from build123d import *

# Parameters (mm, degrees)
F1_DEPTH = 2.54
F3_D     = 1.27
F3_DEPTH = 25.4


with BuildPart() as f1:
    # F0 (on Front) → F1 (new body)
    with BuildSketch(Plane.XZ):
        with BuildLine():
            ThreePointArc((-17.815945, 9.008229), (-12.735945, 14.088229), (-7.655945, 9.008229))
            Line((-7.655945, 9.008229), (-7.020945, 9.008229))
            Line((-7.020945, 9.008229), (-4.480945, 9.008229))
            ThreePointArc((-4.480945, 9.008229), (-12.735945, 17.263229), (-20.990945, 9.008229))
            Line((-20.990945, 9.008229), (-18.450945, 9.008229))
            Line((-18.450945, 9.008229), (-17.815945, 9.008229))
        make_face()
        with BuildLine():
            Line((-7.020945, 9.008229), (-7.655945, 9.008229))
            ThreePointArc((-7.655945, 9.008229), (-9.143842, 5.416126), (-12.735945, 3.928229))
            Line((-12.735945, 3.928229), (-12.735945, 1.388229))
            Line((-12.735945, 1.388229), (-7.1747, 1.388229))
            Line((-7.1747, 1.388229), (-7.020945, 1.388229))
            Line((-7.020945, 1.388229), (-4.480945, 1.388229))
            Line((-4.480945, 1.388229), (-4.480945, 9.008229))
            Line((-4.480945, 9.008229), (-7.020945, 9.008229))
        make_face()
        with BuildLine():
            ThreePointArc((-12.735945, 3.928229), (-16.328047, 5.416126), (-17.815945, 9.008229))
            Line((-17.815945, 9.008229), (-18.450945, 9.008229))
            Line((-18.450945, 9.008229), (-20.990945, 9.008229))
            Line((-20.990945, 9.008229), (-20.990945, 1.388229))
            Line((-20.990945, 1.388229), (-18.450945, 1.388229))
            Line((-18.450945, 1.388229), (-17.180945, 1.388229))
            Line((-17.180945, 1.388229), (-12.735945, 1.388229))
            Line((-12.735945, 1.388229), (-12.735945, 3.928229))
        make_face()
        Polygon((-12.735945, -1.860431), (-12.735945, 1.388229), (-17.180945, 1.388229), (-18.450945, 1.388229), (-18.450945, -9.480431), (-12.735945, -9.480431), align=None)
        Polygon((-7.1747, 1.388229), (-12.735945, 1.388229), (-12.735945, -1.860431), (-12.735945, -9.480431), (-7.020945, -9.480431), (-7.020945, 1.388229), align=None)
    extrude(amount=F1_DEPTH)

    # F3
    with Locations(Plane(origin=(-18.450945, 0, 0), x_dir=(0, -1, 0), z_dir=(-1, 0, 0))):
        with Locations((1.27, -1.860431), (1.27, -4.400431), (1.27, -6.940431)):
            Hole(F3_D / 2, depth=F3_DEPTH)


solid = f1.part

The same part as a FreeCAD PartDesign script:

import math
import FreeCAD as App
import Part
import Sketcher
Q = App.Units.Quantity

doc = App.newDocument("Part")
params = doc.addObject("Spreadsheet::Sheet", "Params")
for row, (alias, value) in enumerate([
    ("sketch1_radius", "0.2 in"),
    ("sketch1_width", "0.1 in"),
    ("sketch1_height", "0.3 in"),
    ("sketch1_radius2", "0.325 in"),
    ("pad1_length", "0.1 in"),
    ("sketch2_diameter", "0.05 in"),
    ("hole_diameter", "0.05 in"),
    ("hole_depth", "1 in"),
], start=1):
    params.set(f"A{row}", alias)
    params.set(f"B{row}", "=" + value)
    params.setAlias(f"B{row}", alias)

body = doc.addObject("PartDesign::Body", "Body")

# Sketch on XZ plane
sketch1 = body.newObject("Sketcher::SketchObject", "Sketch")
sketch1.AttachmentSupport = (doc.getObject("XZ_Plane"), [""])
sketch1.MapMode = "FlatFace"
sketch1.addGeometry(Part.LineSegment(App.Vector(-4.480945, 1.388229, 0), App.Vector(-4.480945, 9.008229, 0)), False)
sketch1.addGeometry(Part.ArcOfCircle(Part.Circle(App.Vector(-12.735945, 9.008229, 0), App.Vector(0, 0, 1), 8.255), math.radians(0), math.radians(180)), False)
sketch1.addGeometry(Part.LineSegment(App.Vector(-20.990945, 9.008229, 0), App.Vector(-20.990945, 1.388229, 0)), False)
sketch1.addGeometry(Part.LineSegment(App.Vector(-20.990945, 1.388229, 0), App.Vector(-18.450945, 1.388229, 0)), False)
sketch1.addGeometry(Part.LineSegment(App.Vector(-18.450945, 1.388229, 0), App.Vector(-18.450945, -9.480431, 0)), False)
sketch1.addGeometry(Part.LineSegment(App.Vector(-18.450945, -9.480431, 0), App.Vector(-7.020945, -9.480431, 0)), False)
sketch1.addGeometry(Part.LineSegment(App.Vector(-7.020945, -9.480431, 0), App.Vector(-7.020945, 1.388229, 0)), False)
sketch1.addGeometry(Part.LineSegment(App.Vector(-7.020945, 1.388229, 0), App.Vector(-4.480945, 1.388229, 0)), False)
sketch1.addGeometry(Part.ArcOfCircle(Part.Circle(App.Vector(-12.735945, 9.008229, 0), App.Vector(0, 0, 1), 5.08), math.radians(0), math.radians(180)), False)
sketch1.addGeometry(Part.ArcOfCircle(Part.Circle(App.Vector(-12.735943, 9.008227, 0), App.Vector(0, 0, 1), 5.079998), math.radians(-90.000021), math.radians(0.000021)), False)
sketch1.addGeometry(Part.ArcOfCircle(Part.Circle(App.Vector(-12.735945, 9.008229, 0), App.Vector(0, 0, 1), 5.08), math.radians(179.999998), math.radians(270.000002)), False)
sketch1.addConstraint(Sketcher.Constraint("Tangent", 0, 2, 1, 1))
sketch1.addConstraint(Sketcher.Constraint("Tangent", 1, 2, 2, 1))
sketch1.addConstraint(Sketcher.Constraint("Coincident", 2, 2, 3, 1))
sketch1.addConstraint(Sketcher.Constraint("Coincident", 3, 2, 4, 1))
sketch1.addConstraint(Sketcher.Constraint("Coincident", 4, 2, 5, 1))
sketch1.addConstraint(Sketcher.Constraint("Coincident", 5, 2, 6, 1))
sketch1.addConstraint(Sketcher.Constraint("Coincident", 6, 2, 7, 1))
sketch1.addConstraint(Sketcher.Constraint("Coincident", 7, 2, 0, 1))
sketch1.addConstraint(Sketcher.Constraint("Tangent", 8, 1, 9, 2))
sketch1.addConstraint(Sketcher.Constraint("Tangent", 9, 1, 10, 2))
sketch1.addConstraint(Sketcher.Constraint("Tangent", 10, 1, 8, 2))
sketch1.addConstraint(Sketcher.Constraint("Vertical", 0))
sketch1.addConstraint(Sketcher.Constraint("Vertical", 2))
sketch1.addConstraint(Sketcher.Constraint("Horizontal", 3))
sketch1.addConstraint(Sketcher.Constraint("Vertical", 4))
sketch1.addConstraint(Sketcher.Constraint("Horizontal", 5))
sketch1.addConstraint(Sketcher.Constraint("Vertical", 6))
sketch1.addConstraint(Sketcher.Constraint("Horizontal", 7))
sketch1.addConstraint(Sketcher.Constraint("Coincident", 8, 3, 1, 3))
sketch1.addConstraint(Sketcher.Constraint("Horizontal", 3, 2, 6, 2))
sketch1.addConstraint(Sketcher.Constraint("Horizontal", 1, 2, 8, 1))
sketch1.addConstraint(Sketcher.Constraint("Horizontal", 8, 1, 10, 1))
sketch1.addConstraint(Sketcher.Constraint("Vertical", 10, 3, 9, 1))
sketch1.addConstraint(Sketcher.Constraint("Equal", 3, 7))
sketch1.addConstraint(Sketcher.Constraint("Radius", 8, Q("0.2 in")))
sketch1.addConstraint(Sketcher.Constraint("DistanceX", 3, 1, 3, 2, Q("0.1 in")))
sketch1.addConstraint(Sketcher.Constraint("DistanceY", 0, 1, 0, 2, Q("0.3 in")))
sketch1.addConstraint(Sketcher.Constraint("Radius", 1, Q("0.325 in")))
sketch1.addConstraint(Sketcher.Constraint("DistanceY", 4, 2, 4, 1, Q("0.4279 in")))
sketch1.addConstraint(Sketcher.Constraint("DistanceY", -1, 1, 1, 3, 9.008229))
sketch1.addConstraint(Sketcher.Constraint("DistanceX", 1, 3, -1, 1, 12.735945))
sketch1.setExpression("Constraints[24]", "Params.sketch1_radius")
sketch1.setExpression("Constraints[25]", "Params.sketch1_width")
sketch1.setExpression("Constraints[26]", "Params.sketch1_height")
sketch1.setExpression("Constraints[27]", "Params.sketch1_radius2")
pad1 = body.newObject("PartDesign::Pad", "Pad")
pad1.Profile = sketch1
pad1.setExpression("Length", "Params.pad1_length")

# Sketch on YZ plane
sketch2 = body.newObject("Sketcher::SketchObject", "Sketch001")
sketch2.AttachmentSupport = (doc.getObject("YZ_Plane"), [""])
sketch2.MapMode = "FlatFace"
sketch2.AttachmentOffset = App.Placement(App.Vector(0, 0, -18.450945), App.Rotation())
sketch2.addGeometry(Part.Circle(App.Vector(-1.27, -1.860431, 0), App.Vector(0, 0, 1), 0.635), False)
sketch2.addGeometry(Part.Circle(App.Vector(-1.27, -4.400431, 0), App.Vector(0, 0, 1), 0.635), False)
sketch2.addGeometry(Part.Circle(App.Vector(-1.27, -6.940431, 0), App.Vector(0, 0, 1), 0.635), False)
sketch2.addConstraint(Sketcher.Constraint("Equal", 0, 1))
sketch2.addConstraint(Sketcher.Constraint("Equal", 1, 2))
sketch2.addConstraint(Sketcher.Constraint("Vertical", 0, 3, 1, 3))
sketch2.addConstraint(Sketcher.Constraint("Vertical", 1, 3, 2, 3))
sketch2.addConstraint(Sketcher.Constraint("Diameter", 0, Q("0.05 in")))
sketch2.addConstraint(Sketcher.Constraint("DistanceY", 1, 3, 0, 3, Q("0.1 in")))
sketch2.addConstraint(Sketcher.Constraint("DistanceY", 2, 3, 1, 3, Q("0.1 in")))
sketch2.addConstraint(Sketcher.Constraint("DistanceX", 0, 3, -1, 1, Q("0.05 in")))
sketch2.addConstraint(Sketcher.Constraint("DistanceY", 0, 3, -1, 1, 1.860431))
sketch2.setExpression("Constraints[4]", "Params.sketch2_diameter")
doc.recompute()
hole = body.newObject("PartDesign::Hole", "Hole")
hole.Profile = sketch2
hole.ThreadType = "None"
hole.setExpression("Diameter", "Params.hole_diameter")
hole.DepthType = "Dimension"
hole.setExpression("Depth", "Params.hole_depth")
hole.DrillPoint = "Flat"
hole.Reversed = True

doc.recompute()
